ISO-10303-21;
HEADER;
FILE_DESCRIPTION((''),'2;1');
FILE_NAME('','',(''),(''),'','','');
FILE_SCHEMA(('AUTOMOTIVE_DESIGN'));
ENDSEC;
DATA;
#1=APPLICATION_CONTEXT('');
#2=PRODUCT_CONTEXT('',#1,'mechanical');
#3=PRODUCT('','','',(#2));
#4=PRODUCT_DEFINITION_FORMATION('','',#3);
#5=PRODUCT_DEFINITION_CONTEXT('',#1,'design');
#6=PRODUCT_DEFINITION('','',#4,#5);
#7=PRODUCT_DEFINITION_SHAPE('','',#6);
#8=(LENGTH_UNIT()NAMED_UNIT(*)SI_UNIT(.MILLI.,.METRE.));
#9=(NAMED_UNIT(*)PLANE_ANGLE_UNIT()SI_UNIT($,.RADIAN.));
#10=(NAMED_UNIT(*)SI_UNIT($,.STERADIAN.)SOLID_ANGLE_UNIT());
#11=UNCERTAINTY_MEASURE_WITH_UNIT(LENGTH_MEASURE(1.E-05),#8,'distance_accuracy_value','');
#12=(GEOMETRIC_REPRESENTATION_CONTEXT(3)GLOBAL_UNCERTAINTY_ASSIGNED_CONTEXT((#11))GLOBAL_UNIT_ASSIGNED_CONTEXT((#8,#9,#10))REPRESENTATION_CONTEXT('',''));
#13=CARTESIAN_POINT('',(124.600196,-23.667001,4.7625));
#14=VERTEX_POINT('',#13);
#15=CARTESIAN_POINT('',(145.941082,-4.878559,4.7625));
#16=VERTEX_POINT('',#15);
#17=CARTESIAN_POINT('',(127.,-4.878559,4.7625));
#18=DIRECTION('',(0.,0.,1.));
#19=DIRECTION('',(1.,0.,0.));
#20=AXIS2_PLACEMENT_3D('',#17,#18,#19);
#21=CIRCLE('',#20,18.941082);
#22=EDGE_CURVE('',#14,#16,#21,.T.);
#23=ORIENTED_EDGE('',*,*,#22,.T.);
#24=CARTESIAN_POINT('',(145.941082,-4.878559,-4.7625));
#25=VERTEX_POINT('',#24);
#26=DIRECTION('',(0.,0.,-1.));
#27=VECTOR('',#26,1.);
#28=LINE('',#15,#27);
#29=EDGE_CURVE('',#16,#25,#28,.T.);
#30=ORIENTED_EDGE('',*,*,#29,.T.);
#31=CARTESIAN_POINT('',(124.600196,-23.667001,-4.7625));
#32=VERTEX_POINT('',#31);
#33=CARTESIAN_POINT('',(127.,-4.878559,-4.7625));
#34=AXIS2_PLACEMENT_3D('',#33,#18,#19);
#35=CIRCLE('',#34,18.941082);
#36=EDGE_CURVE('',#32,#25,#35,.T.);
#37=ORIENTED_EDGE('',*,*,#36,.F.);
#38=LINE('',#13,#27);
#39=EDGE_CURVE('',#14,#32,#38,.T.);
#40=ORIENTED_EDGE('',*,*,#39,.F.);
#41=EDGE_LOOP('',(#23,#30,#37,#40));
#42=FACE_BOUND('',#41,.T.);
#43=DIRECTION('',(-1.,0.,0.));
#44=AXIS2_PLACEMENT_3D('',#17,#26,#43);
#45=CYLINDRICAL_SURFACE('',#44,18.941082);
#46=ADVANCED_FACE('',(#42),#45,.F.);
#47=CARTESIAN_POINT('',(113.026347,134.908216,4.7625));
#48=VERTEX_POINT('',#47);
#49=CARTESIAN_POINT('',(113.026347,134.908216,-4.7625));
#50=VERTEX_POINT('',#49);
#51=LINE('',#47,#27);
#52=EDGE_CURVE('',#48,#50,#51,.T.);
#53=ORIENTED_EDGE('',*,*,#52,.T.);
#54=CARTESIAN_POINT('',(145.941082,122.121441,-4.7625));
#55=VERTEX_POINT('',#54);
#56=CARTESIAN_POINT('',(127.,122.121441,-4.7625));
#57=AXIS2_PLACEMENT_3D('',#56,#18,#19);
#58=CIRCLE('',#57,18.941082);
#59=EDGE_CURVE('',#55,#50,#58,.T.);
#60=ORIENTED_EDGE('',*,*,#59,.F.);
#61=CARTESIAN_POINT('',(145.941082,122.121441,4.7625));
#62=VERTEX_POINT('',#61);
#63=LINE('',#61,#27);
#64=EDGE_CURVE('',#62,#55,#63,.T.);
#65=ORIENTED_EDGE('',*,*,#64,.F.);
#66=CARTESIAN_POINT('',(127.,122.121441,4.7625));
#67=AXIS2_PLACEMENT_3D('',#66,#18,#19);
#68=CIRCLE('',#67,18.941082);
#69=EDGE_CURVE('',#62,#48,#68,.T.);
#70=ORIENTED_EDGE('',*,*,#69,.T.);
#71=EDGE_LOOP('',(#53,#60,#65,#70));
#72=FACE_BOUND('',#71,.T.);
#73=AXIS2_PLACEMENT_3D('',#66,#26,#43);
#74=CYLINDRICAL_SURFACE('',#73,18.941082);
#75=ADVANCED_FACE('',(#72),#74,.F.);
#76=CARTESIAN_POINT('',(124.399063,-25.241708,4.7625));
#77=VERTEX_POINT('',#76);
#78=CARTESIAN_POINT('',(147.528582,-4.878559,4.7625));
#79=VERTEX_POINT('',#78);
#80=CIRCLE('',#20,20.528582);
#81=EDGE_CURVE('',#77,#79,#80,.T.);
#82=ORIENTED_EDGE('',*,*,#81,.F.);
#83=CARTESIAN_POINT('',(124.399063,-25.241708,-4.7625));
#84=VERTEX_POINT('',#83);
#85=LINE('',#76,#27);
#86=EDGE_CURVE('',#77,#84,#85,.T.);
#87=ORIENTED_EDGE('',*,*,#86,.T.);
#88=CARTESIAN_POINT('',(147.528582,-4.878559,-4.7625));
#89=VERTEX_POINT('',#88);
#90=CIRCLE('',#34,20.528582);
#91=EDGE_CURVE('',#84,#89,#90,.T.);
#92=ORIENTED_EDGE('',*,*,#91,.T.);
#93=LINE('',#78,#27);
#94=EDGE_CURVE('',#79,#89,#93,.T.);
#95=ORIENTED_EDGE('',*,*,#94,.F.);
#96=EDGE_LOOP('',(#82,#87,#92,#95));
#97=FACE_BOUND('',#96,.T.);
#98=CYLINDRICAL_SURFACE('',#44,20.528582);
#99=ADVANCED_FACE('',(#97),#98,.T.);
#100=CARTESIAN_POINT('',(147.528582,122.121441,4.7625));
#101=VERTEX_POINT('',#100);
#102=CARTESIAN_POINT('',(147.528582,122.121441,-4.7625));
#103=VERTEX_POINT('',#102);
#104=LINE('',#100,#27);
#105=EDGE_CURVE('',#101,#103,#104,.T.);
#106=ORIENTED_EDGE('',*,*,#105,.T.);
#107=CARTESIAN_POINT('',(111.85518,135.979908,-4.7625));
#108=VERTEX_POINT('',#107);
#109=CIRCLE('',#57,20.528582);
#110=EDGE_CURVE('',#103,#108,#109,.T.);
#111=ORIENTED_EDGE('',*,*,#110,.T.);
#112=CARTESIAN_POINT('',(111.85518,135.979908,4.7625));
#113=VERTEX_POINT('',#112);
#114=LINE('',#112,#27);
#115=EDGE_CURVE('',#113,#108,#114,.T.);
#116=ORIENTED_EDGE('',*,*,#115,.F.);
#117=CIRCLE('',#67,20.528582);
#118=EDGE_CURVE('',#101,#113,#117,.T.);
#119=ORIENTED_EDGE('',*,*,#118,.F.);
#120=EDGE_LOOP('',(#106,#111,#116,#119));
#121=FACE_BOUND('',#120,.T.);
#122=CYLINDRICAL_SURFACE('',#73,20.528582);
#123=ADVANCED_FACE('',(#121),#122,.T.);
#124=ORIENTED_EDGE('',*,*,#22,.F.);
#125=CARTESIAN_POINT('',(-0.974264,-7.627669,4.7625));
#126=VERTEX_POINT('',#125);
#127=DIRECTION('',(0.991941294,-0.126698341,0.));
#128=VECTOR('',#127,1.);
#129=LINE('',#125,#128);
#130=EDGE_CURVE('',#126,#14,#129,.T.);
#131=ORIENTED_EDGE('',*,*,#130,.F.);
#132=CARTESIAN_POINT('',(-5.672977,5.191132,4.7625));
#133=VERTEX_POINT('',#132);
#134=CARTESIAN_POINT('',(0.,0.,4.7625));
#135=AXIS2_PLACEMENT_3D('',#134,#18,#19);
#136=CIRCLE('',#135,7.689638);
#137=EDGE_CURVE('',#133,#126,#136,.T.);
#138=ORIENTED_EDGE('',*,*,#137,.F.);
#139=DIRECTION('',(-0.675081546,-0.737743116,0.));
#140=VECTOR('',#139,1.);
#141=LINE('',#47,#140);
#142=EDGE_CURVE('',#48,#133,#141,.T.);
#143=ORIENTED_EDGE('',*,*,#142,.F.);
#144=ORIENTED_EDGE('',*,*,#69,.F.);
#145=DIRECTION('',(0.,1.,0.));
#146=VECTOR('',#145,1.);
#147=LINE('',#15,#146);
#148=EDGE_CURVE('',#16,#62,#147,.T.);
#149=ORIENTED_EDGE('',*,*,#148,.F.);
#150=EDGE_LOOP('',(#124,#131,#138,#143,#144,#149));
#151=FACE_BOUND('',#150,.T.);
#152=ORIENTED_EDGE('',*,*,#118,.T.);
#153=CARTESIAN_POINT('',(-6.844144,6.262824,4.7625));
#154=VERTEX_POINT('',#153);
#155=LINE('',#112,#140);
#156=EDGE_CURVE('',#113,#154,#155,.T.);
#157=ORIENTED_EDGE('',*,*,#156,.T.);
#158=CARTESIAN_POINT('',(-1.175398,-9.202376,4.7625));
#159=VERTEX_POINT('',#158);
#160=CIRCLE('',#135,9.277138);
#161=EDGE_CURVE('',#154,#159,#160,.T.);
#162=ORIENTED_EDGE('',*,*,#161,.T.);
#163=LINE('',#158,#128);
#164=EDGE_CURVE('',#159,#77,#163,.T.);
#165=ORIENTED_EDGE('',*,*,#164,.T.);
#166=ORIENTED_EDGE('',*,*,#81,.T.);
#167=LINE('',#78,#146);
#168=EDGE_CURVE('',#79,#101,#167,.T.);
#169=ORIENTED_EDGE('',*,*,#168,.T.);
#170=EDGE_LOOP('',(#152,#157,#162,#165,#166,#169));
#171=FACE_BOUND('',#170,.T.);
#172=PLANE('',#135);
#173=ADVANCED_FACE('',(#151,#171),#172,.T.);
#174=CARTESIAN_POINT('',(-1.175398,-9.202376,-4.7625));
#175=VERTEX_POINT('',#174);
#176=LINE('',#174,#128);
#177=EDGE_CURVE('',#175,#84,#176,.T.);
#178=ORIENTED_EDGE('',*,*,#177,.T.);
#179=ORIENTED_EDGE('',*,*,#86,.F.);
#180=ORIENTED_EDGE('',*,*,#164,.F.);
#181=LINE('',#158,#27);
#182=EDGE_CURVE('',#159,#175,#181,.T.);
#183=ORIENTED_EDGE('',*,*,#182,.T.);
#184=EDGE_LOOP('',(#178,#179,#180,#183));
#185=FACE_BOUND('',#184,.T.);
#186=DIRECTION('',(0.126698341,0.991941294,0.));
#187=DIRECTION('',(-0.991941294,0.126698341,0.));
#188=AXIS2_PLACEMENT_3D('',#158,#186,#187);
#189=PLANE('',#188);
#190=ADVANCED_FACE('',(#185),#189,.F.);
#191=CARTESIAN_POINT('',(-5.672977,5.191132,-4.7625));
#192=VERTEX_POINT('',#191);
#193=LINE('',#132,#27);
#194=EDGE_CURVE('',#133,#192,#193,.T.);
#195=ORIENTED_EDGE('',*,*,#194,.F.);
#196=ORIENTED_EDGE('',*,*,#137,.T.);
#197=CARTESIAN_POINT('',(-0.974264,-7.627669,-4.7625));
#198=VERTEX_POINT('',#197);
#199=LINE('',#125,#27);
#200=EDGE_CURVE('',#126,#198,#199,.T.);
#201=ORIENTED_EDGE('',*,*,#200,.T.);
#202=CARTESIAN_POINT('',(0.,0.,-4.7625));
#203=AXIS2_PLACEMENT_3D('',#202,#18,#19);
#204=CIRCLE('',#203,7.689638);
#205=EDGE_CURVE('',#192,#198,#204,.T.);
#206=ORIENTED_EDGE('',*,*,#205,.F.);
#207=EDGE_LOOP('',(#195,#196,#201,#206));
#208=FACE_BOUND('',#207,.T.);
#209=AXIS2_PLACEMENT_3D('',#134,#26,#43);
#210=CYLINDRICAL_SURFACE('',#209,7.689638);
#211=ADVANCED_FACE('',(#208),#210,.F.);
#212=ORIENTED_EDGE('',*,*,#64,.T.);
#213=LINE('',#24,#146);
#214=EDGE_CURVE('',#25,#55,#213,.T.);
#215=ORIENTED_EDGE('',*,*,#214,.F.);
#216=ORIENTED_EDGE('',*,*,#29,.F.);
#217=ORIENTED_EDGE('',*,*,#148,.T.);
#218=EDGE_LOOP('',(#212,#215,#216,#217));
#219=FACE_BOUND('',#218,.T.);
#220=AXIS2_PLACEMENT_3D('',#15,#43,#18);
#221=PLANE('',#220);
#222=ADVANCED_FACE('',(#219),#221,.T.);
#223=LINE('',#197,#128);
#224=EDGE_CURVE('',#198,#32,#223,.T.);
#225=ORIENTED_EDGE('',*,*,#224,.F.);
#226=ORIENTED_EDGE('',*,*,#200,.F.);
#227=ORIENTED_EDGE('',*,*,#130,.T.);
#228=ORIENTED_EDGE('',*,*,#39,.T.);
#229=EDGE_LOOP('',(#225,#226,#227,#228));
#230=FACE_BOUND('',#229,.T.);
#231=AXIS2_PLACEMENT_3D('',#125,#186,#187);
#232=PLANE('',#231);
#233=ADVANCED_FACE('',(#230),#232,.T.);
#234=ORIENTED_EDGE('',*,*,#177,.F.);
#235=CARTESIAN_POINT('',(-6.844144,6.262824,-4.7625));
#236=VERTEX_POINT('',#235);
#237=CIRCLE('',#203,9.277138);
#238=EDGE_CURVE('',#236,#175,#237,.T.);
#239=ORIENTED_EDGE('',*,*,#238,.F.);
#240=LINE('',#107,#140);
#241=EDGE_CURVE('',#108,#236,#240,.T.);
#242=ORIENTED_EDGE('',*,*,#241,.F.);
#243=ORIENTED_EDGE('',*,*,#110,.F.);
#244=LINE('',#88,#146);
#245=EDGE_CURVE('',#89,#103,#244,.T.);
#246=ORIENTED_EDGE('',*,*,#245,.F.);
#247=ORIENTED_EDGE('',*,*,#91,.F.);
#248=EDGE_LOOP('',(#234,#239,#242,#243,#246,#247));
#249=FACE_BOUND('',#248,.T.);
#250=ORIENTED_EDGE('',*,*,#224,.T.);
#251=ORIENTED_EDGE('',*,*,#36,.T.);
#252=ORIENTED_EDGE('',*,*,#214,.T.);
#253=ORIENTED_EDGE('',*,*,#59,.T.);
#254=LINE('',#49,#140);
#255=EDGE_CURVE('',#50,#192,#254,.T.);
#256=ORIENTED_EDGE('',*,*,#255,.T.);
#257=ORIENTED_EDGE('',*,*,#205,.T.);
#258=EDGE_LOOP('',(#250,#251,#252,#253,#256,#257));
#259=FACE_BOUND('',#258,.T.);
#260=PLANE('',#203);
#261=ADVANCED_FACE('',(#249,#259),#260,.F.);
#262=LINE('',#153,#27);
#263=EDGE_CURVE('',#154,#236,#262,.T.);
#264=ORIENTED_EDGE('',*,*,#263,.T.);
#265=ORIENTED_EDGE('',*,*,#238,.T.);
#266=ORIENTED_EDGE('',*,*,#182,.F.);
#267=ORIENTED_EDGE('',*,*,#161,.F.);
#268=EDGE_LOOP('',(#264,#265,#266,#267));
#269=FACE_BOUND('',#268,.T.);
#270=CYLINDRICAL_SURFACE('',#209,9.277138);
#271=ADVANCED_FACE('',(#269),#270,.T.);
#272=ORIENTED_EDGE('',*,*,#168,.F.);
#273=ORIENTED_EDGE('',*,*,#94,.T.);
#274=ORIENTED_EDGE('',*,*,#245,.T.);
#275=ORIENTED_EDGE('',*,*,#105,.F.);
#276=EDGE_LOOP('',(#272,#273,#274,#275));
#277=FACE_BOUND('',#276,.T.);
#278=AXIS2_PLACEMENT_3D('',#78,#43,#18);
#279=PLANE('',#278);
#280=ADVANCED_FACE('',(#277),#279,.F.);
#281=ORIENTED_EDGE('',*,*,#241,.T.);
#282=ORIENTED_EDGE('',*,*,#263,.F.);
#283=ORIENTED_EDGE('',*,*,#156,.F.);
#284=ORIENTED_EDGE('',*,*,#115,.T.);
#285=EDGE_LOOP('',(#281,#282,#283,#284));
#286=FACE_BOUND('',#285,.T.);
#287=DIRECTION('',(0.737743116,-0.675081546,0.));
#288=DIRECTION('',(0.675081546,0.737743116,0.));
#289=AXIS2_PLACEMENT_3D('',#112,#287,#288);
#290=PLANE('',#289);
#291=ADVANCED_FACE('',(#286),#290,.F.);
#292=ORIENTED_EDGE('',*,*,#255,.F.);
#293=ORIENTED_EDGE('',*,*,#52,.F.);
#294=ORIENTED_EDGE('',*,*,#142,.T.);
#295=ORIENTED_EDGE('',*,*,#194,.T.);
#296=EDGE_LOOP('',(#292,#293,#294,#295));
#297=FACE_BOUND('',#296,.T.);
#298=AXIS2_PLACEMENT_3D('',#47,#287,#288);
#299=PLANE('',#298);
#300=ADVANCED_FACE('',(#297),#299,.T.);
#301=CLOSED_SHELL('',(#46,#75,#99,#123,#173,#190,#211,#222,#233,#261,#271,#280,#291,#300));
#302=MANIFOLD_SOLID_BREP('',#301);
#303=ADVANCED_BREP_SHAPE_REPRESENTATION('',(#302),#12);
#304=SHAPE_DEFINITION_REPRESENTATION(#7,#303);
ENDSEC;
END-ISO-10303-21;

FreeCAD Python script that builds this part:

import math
import FreeCAD as App
import Part
import Sketcher
from FreeCAD import Vector
Q = App.Units.Quantity

doc = App.newDocument("Part")
body = doc.addObject("PartDesign::Body", "Body")

# Sketch on XY plane
sketch1 = body.newObject("Sketcher::SketchObject", "Sketch")
sketch1.AttachmentSupport = (doc.getObject("XY_Plane"), [""])
sketch1.MapMode = "FlatFace"
sketch1.addGeometry([
    Part.LineSegment(Vector(112, 136, 0), Vector(-7, 6, 0)),  # 0
    Part.ArcOfCircle(Part.Circle(Vector(0, 0, 0), Vector(0, 0, 1), 9), math.radians(138), math.radians(263)),  # 1
    Part.LineSegment(Vector(-1, -9, 0), Vector(124, -25, 0)),  # 2
    Part.ArcOfCircle(Part.Circle(Vector(127, -5, 0), Vector(0, 0, 1), 21), math.radians(-97), math.radians(0)),  # 3
    Part.LineSegment(Vector(148, -5, 0), Vector(148, 122, 0)),  # 4
    Part.ArcOfCircle(Part.Circle(Vector(127, 122, 0), Vector(0, 0, 1), 21), math.radians(0), math.radians(138)),  # 5
    Part.LineSegment(Vector(-6, 5, 0), Vector(113, 135, 0)),  # 6
    Part.ArcOfCircle(Part.Circle(Vector(127, 122, 0), Vector(0, 0, 1), 19), math.radians(0), math.radians(138)),  # 7
    Part.LineSegment(Vector(146, 122, 0), Vector(146, -5, 0)),  # 8
    Part.ArcOfCircle(Part.Circle(Vector(127, -5, 0), Vector(0, 0, 1), 19), math.radians(-97), math.radians(0)),  # 9
    Part.LineSegment(Vector(125, -24, 0), Vector(-1, -8, 0)),  # 10
    Part.ArcOfCircle(Part.Circle(Vector(0, 0, 0), Vector(0, 0, 1), 8), math.radians(138), math.radians(263)),  # 11
], False)
sketch1.addConstraint([
    Sketcher.Constraint("Tangent", 0, 2, 1, 1),
    Sketcher.Constraint("Tangent", 1, 2, 2, 1),
    Sketcher.Constraint("Tangent", 2, 2, 3, 1),
    Sketcher.Constraint("Tangent", 3, 2, 4, 1),
    Sketcher.Constraint("Tangent", 4, 2, 5, 1),
    Sketcher.Constraint("Tangent", 5, 2, 0, 1),
    Sketcher.Constraint("Tangent", 6, 2, 7, 2),
    Sketcher.Constraint("Tangent", 7, 1, 8, 1),
    Sketcher.Constraint("Tangent", 8, 2, 9, 2),
    Sketcher.Constraint("Tangent", 9, 1, 10, 1),
    Sketcher.Constraint("Tangent", 10, 2, 11, 2),
    Sketcher.Constraint("Tangent", 11, 1, 6, 1),
    Sketcher.Constraint("Vertical", 4),
    Sketcher.Constraint("Vertical", 8),
    Sketcher.Constraint("Coincident", 1, 3, -1, 1),
    Sketcher.Constraint("Coincident", 11, 3, -1, 1),
    Sketcher.Constraint("Coincident", 7, 3, 5, 3),
    Sketcher.Constraint("Coincident", 9, 3, 3, 3),
    Sketcher.Constraint("Equal", 3, 5),
    Sketcher.Constraint("Parallel", 0, 6),
    Sketcher.Constraint("DistanceY", 4, 1, 4, 2, Q("5 in")),
    Sketcher.Constraint("DistanceX", -1, 1, 3, 3, Q("5 in")),
    Sketcher.Constraint("DistanceX", 7, 1, 4, 2, Q("0.0625 in")),
    Sketcher.Constraint("Radius", 1, 9.277138),
    Sketcher.Constraint("Radius", 3, 20.528582),
    Sketcher.Constraint("DistanceY", 9, 1, -1, 1, 23.667001),
])
pad1 = body.newObject("PartDesign::Pad", "Pad")
pad1.Profile = sketch1
pad1.Length = Q("0.375 in")
pad1.Midplane = True

doc.recompute()
